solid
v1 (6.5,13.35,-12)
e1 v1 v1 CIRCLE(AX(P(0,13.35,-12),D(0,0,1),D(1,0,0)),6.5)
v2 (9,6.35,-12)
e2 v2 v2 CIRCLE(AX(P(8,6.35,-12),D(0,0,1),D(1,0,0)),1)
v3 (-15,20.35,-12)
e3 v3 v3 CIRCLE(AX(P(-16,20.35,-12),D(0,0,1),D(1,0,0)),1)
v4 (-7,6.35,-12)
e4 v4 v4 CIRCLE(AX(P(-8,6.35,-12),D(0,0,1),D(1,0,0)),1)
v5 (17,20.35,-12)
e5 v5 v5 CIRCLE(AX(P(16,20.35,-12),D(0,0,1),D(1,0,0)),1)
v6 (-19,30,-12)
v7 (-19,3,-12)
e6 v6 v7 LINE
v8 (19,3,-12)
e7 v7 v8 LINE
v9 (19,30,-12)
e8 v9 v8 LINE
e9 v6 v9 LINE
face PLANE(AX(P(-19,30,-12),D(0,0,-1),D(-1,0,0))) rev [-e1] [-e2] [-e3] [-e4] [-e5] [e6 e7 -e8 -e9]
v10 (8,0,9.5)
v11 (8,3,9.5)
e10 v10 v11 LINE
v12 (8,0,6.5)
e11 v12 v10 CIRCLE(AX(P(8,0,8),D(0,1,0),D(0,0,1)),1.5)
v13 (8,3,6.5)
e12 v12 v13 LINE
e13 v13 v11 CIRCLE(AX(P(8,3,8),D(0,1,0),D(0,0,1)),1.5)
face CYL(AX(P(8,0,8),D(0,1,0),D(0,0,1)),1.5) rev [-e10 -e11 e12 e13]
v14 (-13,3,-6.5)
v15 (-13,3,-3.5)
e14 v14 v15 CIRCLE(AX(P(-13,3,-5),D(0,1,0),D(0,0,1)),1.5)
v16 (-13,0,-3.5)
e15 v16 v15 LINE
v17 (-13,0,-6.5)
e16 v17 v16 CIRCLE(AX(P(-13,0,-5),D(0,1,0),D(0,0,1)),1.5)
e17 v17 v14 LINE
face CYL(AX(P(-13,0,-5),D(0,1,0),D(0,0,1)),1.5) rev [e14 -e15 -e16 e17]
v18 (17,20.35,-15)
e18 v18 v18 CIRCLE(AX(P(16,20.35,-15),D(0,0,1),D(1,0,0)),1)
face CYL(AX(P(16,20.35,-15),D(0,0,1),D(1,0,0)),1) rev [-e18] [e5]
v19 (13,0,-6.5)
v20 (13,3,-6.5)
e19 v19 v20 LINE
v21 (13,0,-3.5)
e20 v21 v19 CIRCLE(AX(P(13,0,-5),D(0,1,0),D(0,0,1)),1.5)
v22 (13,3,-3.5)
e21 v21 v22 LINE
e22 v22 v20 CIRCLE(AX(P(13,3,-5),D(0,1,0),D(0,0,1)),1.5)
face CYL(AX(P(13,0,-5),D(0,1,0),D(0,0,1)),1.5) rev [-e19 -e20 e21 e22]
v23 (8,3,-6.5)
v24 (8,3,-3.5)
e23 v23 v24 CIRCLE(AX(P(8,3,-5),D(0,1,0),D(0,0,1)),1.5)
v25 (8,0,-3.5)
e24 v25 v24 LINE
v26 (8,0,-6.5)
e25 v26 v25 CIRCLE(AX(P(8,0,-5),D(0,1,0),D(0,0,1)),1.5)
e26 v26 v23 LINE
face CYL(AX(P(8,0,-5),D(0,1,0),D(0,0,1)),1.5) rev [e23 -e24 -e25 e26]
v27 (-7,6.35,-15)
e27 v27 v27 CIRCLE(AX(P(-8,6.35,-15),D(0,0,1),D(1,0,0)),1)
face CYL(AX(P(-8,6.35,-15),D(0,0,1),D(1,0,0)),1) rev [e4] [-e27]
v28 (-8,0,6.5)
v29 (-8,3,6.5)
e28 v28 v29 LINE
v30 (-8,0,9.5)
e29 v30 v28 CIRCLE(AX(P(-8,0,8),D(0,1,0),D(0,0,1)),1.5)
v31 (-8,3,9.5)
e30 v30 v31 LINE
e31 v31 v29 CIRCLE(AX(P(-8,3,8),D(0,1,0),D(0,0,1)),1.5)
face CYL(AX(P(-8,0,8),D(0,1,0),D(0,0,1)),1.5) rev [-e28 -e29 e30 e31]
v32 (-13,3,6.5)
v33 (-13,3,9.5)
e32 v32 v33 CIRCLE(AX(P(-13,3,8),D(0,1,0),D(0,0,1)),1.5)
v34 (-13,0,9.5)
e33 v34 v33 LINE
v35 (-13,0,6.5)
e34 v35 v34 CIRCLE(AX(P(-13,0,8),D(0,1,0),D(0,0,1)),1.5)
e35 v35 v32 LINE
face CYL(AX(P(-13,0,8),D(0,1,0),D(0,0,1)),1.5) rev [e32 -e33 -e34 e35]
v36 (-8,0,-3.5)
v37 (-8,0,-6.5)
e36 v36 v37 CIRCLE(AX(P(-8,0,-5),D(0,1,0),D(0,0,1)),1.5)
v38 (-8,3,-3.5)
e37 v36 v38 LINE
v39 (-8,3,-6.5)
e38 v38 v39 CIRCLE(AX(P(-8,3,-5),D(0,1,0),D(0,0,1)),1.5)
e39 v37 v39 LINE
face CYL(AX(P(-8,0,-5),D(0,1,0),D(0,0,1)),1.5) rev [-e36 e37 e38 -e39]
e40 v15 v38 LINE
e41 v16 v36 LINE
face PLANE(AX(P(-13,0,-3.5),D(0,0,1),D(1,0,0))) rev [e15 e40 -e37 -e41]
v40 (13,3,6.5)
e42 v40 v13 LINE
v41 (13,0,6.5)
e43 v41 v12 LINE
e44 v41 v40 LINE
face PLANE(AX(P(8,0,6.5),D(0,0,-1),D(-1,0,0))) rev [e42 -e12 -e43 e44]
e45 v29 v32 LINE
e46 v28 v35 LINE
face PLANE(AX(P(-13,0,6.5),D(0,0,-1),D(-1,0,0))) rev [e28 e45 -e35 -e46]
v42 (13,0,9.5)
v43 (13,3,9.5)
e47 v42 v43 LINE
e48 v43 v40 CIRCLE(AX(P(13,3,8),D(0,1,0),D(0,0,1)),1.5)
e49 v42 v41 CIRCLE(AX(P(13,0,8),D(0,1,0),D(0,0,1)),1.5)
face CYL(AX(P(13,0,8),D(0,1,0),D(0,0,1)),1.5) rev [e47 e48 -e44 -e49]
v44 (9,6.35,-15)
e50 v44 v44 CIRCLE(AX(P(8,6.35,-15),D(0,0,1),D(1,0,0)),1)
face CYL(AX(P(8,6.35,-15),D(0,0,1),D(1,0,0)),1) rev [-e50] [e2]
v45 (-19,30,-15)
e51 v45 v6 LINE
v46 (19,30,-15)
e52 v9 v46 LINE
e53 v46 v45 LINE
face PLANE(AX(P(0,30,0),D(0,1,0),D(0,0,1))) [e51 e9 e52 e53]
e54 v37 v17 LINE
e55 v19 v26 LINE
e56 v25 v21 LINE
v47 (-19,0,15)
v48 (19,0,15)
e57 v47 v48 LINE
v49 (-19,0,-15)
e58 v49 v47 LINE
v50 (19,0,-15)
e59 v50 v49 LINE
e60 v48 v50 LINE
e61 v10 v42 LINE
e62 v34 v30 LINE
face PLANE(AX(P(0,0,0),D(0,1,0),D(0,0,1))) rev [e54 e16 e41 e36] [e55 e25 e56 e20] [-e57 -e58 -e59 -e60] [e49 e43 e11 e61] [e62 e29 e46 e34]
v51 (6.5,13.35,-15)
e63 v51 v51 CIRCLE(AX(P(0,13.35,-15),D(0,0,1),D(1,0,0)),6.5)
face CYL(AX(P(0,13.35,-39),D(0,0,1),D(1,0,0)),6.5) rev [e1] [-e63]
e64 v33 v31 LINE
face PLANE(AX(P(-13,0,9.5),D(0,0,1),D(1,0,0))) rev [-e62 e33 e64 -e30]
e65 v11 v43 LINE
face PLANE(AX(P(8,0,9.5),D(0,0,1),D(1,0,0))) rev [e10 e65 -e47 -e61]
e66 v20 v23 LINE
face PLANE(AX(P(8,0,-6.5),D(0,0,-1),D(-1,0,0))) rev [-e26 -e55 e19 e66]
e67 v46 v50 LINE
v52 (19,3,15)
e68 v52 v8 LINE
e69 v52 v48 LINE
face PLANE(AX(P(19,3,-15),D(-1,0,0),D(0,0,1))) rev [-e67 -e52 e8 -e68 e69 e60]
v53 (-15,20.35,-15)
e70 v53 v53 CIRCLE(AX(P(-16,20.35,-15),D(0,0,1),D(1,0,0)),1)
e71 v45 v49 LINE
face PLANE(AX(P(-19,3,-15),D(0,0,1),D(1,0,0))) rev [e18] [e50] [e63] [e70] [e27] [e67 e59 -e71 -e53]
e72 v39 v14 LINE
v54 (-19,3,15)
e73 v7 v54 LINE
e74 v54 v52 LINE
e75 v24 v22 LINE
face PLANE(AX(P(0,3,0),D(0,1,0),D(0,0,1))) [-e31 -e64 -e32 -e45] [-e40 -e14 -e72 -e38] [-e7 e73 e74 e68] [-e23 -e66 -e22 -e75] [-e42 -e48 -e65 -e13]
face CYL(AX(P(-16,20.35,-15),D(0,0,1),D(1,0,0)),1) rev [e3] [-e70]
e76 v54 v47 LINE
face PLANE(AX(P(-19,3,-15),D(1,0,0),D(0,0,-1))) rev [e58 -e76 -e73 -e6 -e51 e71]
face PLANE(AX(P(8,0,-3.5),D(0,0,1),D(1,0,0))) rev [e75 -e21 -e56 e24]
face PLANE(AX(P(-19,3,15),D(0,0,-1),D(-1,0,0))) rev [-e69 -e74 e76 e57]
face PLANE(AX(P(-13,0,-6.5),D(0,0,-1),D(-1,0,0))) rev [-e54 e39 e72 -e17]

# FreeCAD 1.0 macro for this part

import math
import FreeCAD as App
import Part
import Sketcher

V = App.Vector


def add_polygon(sketch, points):
    """Adds a closed chain of lines whose ends are joined by coincident constraints."""
    first, n = sketch.GeometryCount, len(points)
    for a, b in zip(points, points[1:] + points[:1]):
        sketch.addGeometry(Part.LineSegment(App.Vector(*a, 0), App.Vector(*b, 0)), False)
    for i in range(n):
        sketch.addConstraint(Sketcher.Constraint("Coincident", first + i, 2, first + (i + 1) % n, 1))

doc = App.newDocument("Part")
body = doc.addObject("PartDesign::Body", "Body")

# Sketch on XZ plane
sketch1 = doc.addObject("Sketcher::SketchObject", "Sketch")
body.addObject(sketch1)
sketch1.AttachmentSupport = (doc.XZ_Plane, [""])
sketch1.MapMode = "FlatFace"
add_polygon(sketch1, [(-19, -15), (-19, 15), (19, 15), (19, -15)])  # lines 0-3
sketch1.addConstraint([
    Sketcher.Constraint("Vertical", 0),
    Sketcher.Constraint("Horizontal", 1),
    Sketcher.Constraint("Vertical", 2),
    Sketcher.Constraint("Horizontal", 3),
    Sketcher.Constraint("Symmetric", 0, 2, 2, 2, -1, 1),
    Sketcher.Constraint("DistanceX", 1, 1, 1, 2, 38.0),
    Sketcher.Constraint("DistanceY", 0, 1, 0, 2, 30.0),
])
pad1 = doc.addObject("PartDesign::Pad", "Pad")
body.addObject(pad1)
pad1.Profile = sketch1
pad1.Length = 3
pad1.Reversed = True

# Sketch on XZ plane
sketch2 = doc.addObject("Sketcher::SketchObject", "Sketch001")
body.addObject(sketch2)
sketch2.AttachmentSupport = (doc.XZ_Plane, [""])
sketch2.MapMode = "FlatFace"
sketch2.AttachmentOffset = App.Placement(V(0, 0, -3), App.Rotation())
add_polygon(sketch2, [(-19, -15), (-19, -12), (19, -12), (19, -15)])  # lines 0-3
sketch2.addConstraint([
    Sketcher.Constraint("Vertical", 0),
    Sketcher.Constraint("Horizontal", 1),
    Sketcher.Constraint("Vertical", 2),
    Sketcher.Constraint("Horizontal", 3),
    Sketcher.Constraint("DistanceX", 1, 1, 1, 2, 38.0),
    Sketcher.Constraint("DistanceY", 0, 1, 0, 2, 3.0),
    Sketcher.Constraint("DistanceX", 0, 2, -1, 1, 19.0),
    Sketcher.Constraint("DistanceY", 0, 2, -1, 1, 12.0),
])
pad2 = doc.addObject("PartDesign::Pad", "Pad001")
body.addObject(pad2)
pad2.Profile = sketch2
pad2.Length = 27
pad2.Reversed = True

# Sketch on XY plane
sketch3 = doc.addObject("Sketcher::SketchObject", "Sketch002")
body.addObject(sketch3)
sketch3.AttachmentSupport = (doc.XY_Plane, [""])
sketch3.MapMode = "FlatFace"
sketch3.AttachmentOffset = App.Placement(V(0, 0, -12), App.Rotation())
sketch3.addGeometry(Part.Circle(V(0, 13, 0), V(0, 0, 1), 6), False)
sketch3.addConstraint([
    Sketcher.Constraint("PointOnObject", 0, 3, -2),
    Sketcher.Constraint("Diameter", 0, 13.0),
    Sketcher.Constraint("DistanceY", -1, 1, 0, 3, 13.35),
])
pocket1 = doc.addObject("PartDesign::Pocket", "Pocket")
body.addObject(pocket1)
pocket1.Profile = sketch3
pocket1.Length = 27

# Sketch on XZ plane
sketch4 = doc.addObject("Sketcher::SketchObject", "Sketch003")
body.addObject(sketch4)
sketch4.AttachmentSupport = (doc.XZ_Plane, [""])
sketch4.MapMode = "FlatFace"
sketch4.AttachmentOffset = App.Placement(V(0, 0, -3), App.Rotation())
sketch4.addGeometry([
    Part.LineSegment(V(-8, -6.5, 0), V(-13, -6.5, 0)),  # 0
    Part.ArcOfCircle(Part.Circle(V(-13, -5, 0), V(0, 0, 1), 1.5), math.radians(90), math.radians(270)),  # 1
    Part.LineSegment(V(-13, -3.5, 0), V(-8, -3.5, 0)),  # 2
    Part.ArcOfCircle(Part.Circle(V(-8, -5, 0), V(0, 0, 1), 1.5), math.radians(-90), math.radians(90)),  # 3
    Part.LineSegment(V(13, -6.5, 0), V(8, -6.5, 0)),  # 4
    Part.ArcOfCircle(Part.Circle(V(8, -5, 0), V(0, 0, 1), 1.5), math.radians(90), math.radians(270)),  # 5
    Part.LineSegment(V(8, -3.5, 0), V(13, -3.5, 0)),  # 6
    Part.ArcOfCircle(Part.Circle(V(13, -5, 0), V(0, 0, 1), 1.5), math.radians(-90), math.radians(90)),  # 7
    Part.LineSegment(V(13, 6.5, 0), V(8, 6.5, 0)),  # 8
    Part.ArcOfCircle(Part.Circle(V(8, 8, 0), V(0, 0, 1), 1.5), math.radians(90), math.radians(270)),  # 9
    Part.LineSegment(V(8, 9.5, 0), V(13, 9.5, 0)),  # 10
    Part.ArcOfCircle(Part.Circle(V(13, 8, 0), V(0, 0, 1), 1.5), math.radians(-90), math.radians(90)),  # 11
    Part.LineSegment(V(-8, 6.5, 0), V(-13, 6.5, 0)),  # 12
    Part.ArcOfCircle(Part.Circle(V(-13, 8, 0), V(0, 0, 1), 1.5), math.radians(90), math.radians(270)),  # 13
    Part.LineSegment(V(-13, 9.5, 0), V(-8, 9.5, 0)),  # 14
    Part.ArcOfCircle(Part.Circle(V(-8, 8, 0), V(0, 0, 1), 1.5), math.radians(-90), math.radians(90)),  # 15
], False)
sketch4.addConstraint([
    Sketcher.Constraint("Tangent", 0, 2, 1, 2),
    Sketcher.Constraint("Tangent", 1, 1, 2, 1),
    Sketcher.Constraint("Tangent", 2, 2, 3, 2),
    Sketcher.Constraint("Tangent", 3, 1, 0, 1),
    Sketcher.Constraint("Tangent", 4, 2, 5, 2),
    Sketcher.Constraint("Tangent", 5, 1, 6, 1),
    Sketcher.Constraint("Tangent", 6, 2, 7, 2),
    Sketcher.Constraint("Tangent", 7, 1, 4, 1),
    Sketcher.Constraint("Tangent", 8, 2, 9, 2),
    Sketcher.Constraint("Tangent", 9, 1, 10, 1),
    Sketcher.Constraint("Tangent", 10, 2, 11, 2),
    Sketcher.Constraint("Tangent", 11, 1, 8, 1),
    Sketcher.Constraint("Tangent", 12, 2, 13, 2),
    Sketcher.Constraint("Tangent", 13, 1, 14, 1),
    Sketcher.Constraint("Tangent", 14, 2, 15, 2),
    Sketcher.Constraint("Tangent", 15, 1, 12, 1),
    Sketcher.Constraint("Horizontal", 0),
    Sketcher.Constraint("Horizontal", 2),
    Sketcher.Constraint("Horizontal", 4),
    Sketcher.Constraint("Horizontal", 6),
    Sketcher.Constraint("Horizontal", 8),
    Sketcher.Constraint("Horizontal", 10),
    Sketcher.Constraint("Horizontal", 12),
    Sketcher.Constraint("Horizontal", 14),
    Sketcher.Constraint("Equal", 3, 5),
    Sketcher.Constraint("Equal", 7, 9),
    Sketcher.Constraint("Equal", 11, 13),
    Sketcher.Constraint("Symmetric", 3, 1, 8, 2, -1, 1),
    Sketcher.Constraint("Symmetric", 7, 1, 12, 2, -1, 1),
    Sketcher.Constraint("Symmetric", 3, 3, 5, 3, -2),
    Sketcher.Constraint("Vertical", 7, 3, 11, 3),
    Sketcher.Constraint("Vertical", 1, 3, 13, 3),
    Sketcher.Constraint("Vertical", 3, 3, 15, 3),
    Sketcher.Constraint("Radius", 1, 1.5),
    Sketcher.Constraint("DistanceX", 0, 2, 0, 1, 5.0),
    Sketcher.Constraint("DistanceX", 1, 3, -1, 1, 13.0),
    Sketcher.Constraint("DistanceY", 1, 3, -1, 1, 5.0),
])
pocket2 = doc.addObject("PartDesign::Pocket", "Pocket001")
body.addObject(pocket2)
pocket2.Profile = sketch4
pocket2.Type = "ThroughAll"
pocket2.Reversed = True

# Sketch on XY plane
sketch5 = doc.addObject("Sketcher::SketchObject", "Sketch004")
body.addObject(sketch5)
sketch5.AttachmentSupport = (doc.XY_Plane, [""])
sketch5.MapMode = "FlatFace"
sketch5.AttachmentOffset = App.Placement(V(0, 0, -12), App.Rotation())
sketch5.addGeometry([
    Part.Circle(V(16, 20.4, 0), V(0, 0, 1), 1),
    Part.Circle(V(-16, 20.4, 0), V(0, 0, 1), 1),
    Part.Circle(V(-8, 6.3, 0), V(0, 0, 1), 1),
    Part.Circle(V(8, 6.3, 0), V(0, 0, 1), 1),
], False)
sketch5.addConstraint([
    Sketcher.Constraint("Equal", 0, 1),
    Sketcher.Constraint("Equal", 1, 2),
    Sketcher.Constraint("Equal", 2, 3),
    Sketcher.Constraint("Symmetric", 0, 3, 1, 3, -2),
    Sketcher.Constraint("Symmetric", 2, 3, 3, 3, -2),
    Sketcher.Constraint("Diameter", 0, 2.0),
    Sketcher.Constraint("DistanceX", -1, 1, 0, 3, 16.0),
    Sketcher.Constraint("DistanceX", 2, 3, -1, 1, 8.0),
    Sketcher.Constraint("DistanceY", 2, 3, 1, 3, 14.0),
    Sketcher.Constraint("DistanceY", -1, 1, 0, 3, 20.35),
])
pocket3 = doc.addObject("PartDesign::Pocket", "Pocket002")
body.addObject(pocket3)
pocket3.Profile = sketch5
pocket3.Type = "ThroughAll"

doc.recompute()
